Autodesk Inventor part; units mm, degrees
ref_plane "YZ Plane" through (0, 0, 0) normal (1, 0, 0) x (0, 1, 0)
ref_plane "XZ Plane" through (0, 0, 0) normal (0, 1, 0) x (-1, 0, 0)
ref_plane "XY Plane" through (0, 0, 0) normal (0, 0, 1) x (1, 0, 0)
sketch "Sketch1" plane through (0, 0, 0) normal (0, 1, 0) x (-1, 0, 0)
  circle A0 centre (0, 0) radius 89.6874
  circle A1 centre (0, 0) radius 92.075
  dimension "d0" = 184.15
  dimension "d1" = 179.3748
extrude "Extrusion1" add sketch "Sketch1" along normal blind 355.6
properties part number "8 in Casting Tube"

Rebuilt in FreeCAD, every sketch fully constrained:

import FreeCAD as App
import Part
import Sketcher
Q = App.Units.Quantity

doc = App.newDocument("Part")
body = doc.addObject("PartDesign::Body", "Body")

# Sketch on XZ plane
sketch1 = body.newObject("Sketcher::SketchObject", "Sketch")
sketch1.AttachmentSupport = (doc.getObject("XZ_Plane"), [""])
sketch1.MapMode = "FlatFace"
sketch1.addGeometry([
    Part.Circle(App.Vector(0, 0, 0), App.Vector(0, 0, 1), 92),
    Part.Circle(App.Vector(0, 0, 0), App.Vector(0, 0, 1), 90),
], False)
sketch1.addConstraint([
    Sketcher.Constraint("Coincident", 0, 3, -1, 1),
    Sketcher.Constraint("Coincident", 1, 3, -1, 1),
    Sketcher.Constraint("Diameter", 0, Q("7.25 in")),
    Sketcher.Constraint("Diameter", 1, Q("7.062 in")),
])
pad1 = body.newObject("PartDesign::Pad", "Pad")
pad1.Profile = sketch1
pad1.Length = Q("14 in")
pad1.Reversed = True

doc.recompute()
